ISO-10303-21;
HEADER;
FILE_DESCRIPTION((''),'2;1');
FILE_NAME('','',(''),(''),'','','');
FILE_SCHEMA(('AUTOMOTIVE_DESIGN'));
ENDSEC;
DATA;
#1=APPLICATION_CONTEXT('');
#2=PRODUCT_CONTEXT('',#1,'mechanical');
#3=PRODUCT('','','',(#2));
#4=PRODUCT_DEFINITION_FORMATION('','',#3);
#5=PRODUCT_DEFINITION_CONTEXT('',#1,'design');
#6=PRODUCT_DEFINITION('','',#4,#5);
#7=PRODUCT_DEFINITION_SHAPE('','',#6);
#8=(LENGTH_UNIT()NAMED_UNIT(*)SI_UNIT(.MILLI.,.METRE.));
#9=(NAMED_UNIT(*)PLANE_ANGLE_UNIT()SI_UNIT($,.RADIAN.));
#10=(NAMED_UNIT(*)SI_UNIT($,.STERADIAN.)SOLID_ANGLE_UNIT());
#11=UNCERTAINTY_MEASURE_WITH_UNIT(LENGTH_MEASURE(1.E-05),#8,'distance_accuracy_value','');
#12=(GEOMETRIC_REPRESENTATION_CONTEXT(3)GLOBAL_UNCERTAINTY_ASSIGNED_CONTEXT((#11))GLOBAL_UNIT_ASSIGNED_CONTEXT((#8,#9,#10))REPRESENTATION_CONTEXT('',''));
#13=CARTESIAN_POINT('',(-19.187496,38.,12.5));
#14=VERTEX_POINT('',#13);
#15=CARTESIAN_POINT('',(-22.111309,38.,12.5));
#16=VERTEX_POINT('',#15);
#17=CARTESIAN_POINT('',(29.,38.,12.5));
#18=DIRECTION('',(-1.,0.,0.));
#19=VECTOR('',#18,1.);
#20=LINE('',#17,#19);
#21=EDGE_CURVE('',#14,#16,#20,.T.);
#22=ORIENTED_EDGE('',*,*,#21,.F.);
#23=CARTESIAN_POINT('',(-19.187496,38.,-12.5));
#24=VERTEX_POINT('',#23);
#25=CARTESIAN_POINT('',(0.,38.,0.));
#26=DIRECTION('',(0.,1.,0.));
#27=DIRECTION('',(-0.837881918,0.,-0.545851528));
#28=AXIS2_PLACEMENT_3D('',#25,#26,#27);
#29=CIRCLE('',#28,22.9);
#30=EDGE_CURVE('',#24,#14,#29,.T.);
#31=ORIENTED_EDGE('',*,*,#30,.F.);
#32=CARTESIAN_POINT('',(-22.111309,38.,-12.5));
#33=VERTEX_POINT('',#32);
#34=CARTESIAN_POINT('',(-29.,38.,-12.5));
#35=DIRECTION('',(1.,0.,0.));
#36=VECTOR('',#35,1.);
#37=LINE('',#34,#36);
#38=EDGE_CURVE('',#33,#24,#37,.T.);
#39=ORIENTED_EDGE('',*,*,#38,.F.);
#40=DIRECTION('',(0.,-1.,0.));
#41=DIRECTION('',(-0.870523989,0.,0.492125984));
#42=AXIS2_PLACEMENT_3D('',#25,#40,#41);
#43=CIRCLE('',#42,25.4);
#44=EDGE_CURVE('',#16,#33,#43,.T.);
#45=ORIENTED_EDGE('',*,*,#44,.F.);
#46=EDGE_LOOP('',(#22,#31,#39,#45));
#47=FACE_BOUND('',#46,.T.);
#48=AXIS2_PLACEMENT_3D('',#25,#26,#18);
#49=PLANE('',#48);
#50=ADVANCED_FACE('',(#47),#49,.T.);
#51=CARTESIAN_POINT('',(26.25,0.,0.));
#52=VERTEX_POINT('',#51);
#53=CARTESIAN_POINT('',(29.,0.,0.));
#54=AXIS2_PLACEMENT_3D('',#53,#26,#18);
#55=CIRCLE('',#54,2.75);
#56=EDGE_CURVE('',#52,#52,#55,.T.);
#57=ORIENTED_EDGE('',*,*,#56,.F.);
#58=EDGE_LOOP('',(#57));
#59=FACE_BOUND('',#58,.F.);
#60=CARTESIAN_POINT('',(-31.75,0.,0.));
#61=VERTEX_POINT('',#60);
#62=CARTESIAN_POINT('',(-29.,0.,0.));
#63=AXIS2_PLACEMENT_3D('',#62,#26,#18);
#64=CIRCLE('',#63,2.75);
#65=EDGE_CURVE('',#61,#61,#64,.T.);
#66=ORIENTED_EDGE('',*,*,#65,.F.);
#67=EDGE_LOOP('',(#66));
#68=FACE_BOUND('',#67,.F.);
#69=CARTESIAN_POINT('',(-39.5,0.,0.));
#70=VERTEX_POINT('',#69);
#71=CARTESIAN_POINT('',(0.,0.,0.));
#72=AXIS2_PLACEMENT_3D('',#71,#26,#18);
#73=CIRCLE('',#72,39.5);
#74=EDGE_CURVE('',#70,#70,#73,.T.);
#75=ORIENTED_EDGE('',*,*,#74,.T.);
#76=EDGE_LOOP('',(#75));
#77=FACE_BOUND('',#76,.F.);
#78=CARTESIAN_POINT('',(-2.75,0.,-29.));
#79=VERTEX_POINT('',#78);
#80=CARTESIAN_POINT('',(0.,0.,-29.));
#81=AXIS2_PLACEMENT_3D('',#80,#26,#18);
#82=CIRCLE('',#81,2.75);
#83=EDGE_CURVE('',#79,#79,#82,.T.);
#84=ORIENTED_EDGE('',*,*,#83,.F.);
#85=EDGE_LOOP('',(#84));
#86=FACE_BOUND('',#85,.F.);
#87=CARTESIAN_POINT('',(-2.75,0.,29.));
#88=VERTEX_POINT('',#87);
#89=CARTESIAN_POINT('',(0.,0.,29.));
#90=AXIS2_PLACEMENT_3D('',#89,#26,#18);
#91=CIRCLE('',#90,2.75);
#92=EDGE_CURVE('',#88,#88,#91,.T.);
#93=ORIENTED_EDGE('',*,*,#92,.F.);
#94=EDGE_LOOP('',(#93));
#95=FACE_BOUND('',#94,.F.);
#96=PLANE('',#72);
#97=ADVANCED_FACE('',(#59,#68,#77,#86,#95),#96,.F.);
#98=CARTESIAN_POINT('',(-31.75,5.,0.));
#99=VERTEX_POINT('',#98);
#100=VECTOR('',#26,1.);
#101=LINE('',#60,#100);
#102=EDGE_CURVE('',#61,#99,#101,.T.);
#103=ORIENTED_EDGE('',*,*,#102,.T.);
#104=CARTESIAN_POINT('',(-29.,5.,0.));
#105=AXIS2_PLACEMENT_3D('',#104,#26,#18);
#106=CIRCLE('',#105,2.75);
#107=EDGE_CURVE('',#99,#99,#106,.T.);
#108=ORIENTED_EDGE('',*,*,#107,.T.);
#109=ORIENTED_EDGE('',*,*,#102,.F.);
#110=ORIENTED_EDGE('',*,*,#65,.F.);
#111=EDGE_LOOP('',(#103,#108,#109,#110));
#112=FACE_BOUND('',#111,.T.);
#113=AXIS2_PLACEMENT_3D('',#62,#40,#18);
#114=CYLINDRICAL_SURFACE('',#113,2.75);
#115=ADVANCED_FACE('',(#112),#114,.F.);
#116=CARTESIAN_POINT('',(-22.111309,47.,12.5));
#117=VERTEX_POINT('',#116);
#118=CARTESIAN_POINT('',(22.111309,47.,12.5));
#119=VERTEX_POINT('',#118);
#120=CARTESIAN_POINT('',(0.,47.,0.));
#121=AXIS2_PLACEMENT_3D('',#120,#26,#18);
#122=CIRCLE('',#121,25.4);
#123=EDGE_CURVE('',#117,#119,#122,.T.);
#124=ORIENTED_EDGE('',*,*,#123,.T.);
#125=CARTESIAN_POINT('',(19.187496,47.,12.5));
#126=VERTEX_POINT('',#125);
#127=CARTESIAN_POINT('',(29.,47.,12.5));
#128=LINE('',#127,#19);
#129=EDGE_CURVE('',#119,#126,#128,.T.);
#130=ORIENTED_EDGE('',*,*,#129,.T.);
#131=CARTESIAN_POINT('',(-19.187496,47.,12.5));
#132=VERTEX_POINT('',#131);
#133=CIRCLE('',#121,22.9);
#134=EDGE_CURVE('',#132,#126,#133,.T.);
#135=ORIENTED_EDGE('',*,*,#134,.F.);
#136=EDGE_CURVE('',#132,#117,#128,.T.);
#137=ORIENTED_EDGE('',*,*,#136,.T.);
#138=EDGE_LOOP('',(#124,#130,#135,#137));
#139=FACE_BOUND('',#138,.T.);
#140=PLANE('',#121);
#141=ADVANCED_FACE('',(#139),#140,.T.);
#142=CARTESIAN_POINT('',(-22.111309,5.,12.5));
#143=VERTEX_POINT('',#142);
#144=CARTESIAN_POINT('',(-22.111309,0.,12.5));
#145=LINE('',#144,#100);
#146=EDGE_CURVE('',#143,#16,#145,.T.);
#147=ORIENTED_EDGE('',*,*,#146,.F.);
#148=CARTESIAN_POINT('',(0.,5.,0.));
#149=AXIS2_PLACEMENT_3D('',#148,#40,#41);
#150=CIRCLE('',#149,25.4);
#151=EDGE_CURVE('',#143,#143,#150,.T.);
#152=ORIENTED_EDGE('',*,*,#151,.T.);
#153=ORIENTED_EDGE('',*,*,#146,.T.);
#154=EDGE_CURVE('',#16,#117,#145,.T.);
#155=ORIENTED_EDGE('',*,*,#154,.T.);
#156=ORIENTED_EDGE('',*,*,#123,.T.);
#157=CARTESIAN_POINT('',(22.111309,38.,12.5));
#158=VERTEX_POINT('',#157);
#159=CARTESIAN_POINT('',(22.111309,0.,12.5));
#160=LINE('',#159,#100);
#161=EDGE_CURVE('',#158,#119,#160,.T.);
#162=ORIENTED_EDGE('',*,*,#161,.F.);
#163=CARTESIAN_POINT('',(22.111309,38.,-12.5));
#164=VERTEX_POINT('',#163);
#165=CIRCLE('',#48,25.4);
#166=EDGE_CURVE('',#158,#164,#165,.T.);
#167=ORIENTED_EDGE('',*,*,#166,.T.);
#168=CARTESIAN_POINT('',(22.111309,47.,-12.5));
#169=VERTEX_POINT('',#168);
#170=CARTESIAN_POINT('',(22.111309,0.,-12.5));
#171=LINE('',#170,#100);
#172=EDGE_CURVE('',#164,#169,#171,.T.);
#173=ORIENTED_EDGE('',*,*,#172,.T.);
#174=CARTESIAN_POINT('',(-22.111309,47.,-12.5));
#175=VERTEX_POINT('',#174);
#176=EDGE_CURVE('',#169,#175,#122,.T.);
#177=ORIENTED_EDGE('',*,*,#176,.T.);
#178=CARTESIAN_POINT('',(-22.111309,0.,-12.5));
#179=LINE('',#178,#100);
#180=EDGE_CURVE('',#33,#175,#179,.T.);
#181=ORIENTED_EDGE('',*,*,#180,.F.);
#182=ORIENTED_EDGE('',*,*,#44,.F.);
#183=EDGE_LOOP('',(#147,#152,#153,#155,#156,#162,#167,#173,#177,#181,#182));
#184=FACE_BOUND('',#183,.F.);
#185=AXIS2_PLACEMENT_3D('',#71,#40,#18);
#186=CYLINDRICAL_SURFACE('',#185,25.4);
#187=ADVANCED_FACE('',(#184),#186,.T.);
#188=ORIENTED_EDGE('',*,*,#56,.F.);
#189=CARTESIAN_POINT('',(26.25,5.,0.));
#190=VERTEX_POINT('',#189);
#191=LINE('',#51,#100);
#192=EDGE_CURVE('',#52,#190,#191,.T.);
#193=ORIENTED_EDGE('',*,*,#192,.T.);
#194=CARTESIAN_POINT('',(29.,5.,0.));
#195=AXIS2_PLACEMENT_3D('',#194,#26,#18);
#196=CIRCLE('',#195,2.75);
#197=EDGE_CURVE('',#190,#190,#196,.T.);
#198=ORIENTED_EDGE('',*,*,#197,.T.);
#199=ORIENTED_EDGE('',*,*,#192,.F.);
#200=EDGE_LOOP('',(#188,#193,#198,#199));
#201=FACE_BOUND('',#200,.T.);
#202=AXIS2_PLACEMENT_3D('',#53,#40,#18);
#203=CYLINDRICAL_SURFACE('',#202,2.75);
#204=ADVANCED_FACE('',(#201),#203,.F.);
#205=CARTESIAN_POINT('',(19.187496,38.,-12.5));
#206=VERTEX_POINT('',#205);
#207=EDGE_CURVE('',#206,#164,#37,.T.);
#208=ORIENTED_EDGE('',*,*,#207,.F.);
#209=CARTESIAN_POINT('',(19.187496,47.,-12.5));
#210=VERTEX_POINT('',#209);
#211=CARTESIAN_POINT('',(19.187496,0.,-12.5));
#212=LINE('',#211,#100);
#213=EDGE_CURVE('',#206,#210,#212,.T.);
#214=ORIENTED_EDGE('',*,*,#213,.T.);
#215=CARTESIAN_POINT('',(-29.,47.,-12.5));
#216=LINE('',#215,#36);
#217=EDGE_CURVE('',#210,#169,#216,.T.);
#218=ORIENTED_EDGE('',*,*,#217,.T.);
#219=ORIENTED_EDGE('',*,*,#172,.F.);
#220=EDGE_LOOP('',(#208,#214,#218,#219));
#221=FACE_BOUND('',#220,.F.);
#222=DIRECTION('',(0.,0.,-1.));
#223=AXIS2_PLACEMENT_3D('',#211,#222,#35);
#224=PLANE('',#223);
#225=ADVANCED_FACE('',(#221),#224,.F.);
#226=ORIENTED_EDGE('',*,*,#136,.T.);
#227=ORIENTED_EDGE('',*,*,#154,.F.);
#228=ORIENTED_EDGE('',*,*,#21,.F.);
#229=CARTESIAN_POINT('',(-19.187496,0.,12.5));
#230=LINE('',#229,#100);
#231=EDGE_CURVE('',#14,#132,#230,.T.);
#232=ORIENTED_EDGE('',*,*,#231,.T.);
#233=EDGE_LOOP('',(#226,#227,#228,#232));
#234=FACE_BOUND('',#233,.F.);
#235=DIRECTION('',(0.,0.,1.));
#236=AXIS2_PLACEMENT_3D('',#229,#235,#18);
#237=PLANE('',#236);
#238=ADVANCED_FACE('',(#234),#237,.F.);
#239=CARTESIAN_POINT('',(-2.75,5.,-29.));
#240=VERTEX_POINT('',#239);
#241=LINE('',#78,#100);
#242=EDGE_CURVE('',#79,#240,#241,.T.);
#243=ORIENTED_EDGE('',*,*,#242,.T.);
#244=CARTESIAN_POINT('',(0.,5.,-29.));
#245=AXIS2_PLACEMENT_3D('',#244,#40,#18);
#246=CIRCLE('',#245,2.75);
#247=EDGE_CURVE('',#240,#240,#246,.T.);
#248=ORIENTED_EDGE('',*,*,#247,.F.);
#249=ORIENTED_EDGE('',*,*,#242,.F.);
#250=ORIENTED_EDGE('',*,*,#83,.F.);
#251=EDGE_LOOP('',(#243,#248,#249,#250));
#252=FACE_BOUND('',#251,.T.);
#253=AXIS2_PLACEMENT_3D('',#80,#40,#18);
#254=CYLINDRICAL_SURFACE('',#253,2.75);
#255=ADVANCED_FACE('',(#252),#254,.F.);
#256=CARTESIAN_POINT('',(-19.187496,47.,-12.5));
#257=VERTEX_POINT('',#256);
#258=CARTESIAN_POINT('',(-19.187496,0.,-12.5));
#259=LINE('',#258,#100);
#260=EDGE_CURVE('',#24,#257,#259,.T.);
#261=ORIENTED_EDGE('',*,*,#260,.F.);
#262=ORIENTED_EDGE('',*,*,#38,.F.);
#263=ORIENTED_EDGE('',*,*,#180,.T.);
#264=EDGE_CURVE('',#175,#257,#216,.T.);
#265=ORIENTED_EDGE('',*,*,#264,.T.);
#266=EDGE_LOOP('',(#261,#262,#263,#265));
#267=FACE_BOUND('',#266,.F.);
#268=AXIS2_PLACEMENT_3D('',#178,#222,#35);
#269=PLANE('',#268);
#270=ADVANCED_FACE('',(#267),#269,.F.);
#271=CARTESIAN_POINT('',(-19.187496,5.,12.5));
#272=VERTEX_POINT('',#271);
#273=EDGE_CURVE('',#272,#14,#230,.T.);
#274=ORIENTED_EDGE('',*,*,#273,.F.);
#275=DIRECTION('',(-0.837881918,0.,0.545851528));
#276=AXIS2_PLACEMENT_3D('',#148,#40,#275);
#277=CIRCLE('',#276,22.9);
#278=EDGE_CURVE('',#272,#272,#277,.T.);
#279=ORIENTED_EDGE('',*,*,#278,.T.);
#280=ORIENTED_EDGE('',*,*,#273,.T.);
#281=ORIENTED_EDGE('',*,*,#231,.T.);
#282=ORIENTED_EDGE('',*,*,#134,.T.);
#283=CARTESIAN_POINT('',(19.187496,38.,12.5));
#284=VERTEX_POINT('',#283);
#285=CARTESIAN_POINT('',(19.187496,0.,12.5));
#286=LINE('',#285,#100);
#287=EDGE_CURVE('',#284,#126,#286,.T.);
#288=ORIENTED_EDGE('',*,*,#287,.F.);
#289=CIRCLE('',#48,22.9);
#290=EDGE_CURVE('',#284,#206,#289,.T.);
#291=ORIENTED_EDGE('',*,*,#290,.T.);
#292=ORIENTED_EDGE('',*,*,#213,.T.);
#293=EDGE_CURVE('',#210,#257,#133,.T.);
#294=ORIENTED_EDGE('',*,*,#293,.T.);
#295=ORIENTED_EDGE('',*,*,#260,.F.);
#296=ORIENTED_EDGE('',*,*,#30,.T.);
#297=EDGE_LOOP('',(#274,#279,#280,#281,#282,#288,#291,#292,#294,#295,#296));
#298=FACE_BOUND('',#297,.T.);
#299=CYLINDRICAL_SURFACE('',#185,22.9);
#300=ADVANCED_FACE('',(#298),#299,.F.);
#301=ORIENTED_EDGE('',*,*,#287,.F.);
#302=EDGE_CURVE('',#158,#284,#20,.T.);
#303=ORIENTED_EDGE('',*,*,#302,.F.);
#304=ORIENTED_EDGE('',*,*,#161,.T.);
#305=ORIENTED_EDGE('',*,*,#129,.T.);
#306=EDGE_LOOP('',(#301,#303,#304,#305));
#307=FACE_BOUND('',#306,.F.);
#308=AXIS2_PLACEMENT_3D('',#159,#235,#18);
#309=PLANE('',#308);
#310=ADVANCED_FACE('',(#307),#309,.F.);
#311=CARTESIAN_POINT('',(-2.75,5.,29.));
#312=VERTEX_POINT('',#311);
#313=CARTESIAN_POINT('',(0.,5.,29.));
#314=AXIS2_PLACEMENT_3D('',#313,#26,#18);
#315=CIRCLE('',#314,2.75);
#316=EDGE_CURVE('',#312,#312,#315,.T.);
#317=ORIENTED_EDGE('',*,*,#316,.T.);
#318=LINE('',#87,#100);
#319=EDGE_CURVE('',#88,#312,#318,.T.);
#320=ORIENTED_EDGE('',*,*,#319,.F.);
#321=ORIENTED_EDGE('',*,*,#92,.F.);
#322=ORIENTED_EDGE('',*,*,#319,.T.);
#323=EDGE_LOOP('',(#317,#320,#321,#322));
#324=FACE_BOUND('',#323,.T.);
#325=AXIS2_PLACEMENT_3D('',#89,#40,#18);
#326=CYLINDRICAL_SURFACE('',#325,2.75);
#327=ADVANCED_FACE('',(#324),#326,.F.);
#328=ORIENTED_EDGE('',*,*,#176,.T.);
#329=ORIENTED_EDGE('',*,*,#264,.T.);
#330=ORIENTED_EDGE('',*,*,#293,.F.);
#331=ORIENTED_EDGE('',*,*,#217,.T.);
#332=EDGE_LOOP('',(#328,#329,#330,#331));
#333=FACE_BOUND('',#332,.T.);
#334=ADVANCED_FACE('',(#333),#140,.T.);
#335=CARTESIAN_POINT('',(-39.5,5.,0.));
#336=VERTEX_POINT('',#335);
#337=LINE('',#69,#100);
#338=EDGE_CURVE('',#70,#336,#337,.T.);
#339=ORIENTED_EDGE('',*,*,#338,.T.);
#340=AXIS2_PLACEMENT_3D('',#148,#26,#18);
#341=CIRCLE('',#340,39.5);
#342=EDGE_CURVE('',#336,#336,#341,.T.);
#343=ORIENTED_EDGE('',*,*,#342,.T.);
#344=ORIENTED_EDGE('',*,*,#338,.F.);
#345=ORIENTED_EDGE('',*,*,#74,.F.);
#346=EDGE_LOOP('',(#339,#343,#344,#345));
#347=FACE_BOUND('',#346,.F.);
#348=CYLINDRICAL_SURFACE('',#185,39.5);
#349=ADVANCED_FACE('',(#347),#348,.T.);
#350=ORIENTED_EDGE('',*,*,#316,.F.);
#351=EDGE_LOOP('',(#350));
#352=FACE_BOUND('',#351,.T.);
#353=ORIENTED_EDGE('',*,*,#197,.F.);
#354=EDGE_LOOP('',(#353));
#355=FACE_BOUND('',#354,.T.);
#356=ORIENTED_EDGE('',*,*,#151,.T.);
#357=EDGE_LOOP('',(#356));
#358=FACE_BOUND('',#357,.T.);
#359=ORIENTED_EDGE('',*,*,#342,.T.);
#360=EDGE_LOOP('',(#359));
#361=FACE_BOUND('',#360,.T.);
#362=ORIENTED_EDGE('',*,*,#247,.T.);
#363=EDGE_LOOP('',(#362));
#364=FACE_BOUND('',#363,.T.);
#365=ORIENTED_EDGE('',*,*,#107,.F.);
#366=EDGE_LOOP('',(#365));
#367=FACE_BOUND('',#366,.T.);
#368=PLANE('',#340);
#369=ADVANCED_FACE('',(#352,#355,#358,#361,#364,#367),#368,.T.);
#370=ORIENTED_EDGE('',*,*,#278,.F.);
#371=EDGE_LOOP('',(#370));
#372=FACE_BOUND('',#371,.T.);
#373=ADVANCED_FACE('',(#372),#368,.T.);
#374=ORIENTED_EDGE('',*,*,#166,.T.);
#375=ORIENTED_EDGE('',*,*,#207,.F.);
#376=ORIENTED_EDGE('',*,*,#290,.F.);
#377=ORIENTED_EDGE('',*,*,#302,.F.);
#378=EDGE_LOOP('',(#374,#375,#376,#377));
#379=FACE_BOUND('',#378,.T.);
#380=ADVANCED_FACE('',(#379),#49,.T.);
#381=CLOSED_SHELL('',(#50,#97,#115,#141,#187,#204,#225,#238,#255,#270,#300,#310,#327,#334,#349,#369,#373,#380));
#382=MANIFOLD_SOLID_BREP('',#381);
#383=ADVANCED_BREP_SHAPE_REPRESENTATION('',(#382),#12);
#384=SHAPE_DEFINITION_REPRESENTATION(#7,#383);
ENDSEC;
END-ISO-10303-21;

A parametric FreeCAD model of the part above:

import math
import FreeCAD as App
import Part
import Sketcher

doc = App.newDocument("Part")
body = doc.addObject("PartDesign::Body", "Body")

sketch1 = body.newObject("Sketcher::SketchObject", "Sketch")
sketch1.AttachmentSupport = (doc.getObject("XZ_Plane"), [""])
sketch1.MapMode = "FlatFace"
sketch1.addGeometry([
    Part.Circle(App.Vector(0, 0, 0), App.Vector(0, 0, 1), 39.5),
    Part.Circle(App.Vector(-29, 0, 0), App.Vector(0, 0, 1), 2.75),
    Part.Circle(App.Vector(29, 0, 0), App.Vector(0, 0, 1), 2.75),
    Part.Circle(App.Vector(0, -29, 0), App.Vector(0, 0, 1), 2.75),
    Part.Circle(App.Vector(0, 29, 0), App.Vector(0, 0, 1), 2.75),
], False)
sketch1.addConstraint([
    Sketcher.Constraint("Coincident", 0, 3, -1, 1),
    Sketcher.Constraint("Equal", 1, 2),
    Sketcher.Constraint("Equal", 2, 3),
    Sketcher.Constraint("Equal", 3, 4),
    Sketcher.Constraint("Symmetric", 1, 3, 2, 3, -1, 1),
    Sketcher.Constraint("Symmetric", 3, 3, 4, 3, -1, 1),
    Sketcher.Constraint("PointOnObject", 1, 3, -1),
    Sketcher.Constraint("PointOnObject", 3, 3, -2),
    Sketcher.Constraint("Diameter", 0, 79.0),
    Sketcher.Constraint("Diameter", 1, 5.5),
    Sketcher.Constraint("DistanceX", 1, 3, 2, 3, 58.0),
    Sketcher.Constraint("DistanceY", 3, 3, 4, 3, 58.0),
])
pad1 = body.newObject("PartDesign::Pad", "Pad")
pad1.Profile = sketch1
pad1.Length = 5
pad1.Reversed = True

sketch2 = body.newObject("Sketcher::SketchObject", "Sketch001")
sketch2.AttachmentSupport = (doc.getObject("XZ_Plane"), [""])
sketch2.MapMode = "FlatFace"
sketch2.addGeometry([
    Part.ArcOfCircle(Part.Circle(App.Vector(0, 0, 0), App.Vector(0, 0, 1), 22.9), math.radians(33.082873), math.radians(146.917127)),
    Part.LineSegment(App.Vector(-19.187496, 12.5, 0), App.Vector(-22.111309, 12.5, 0)),
    Part.ArcOfCircle(Part.Circle(App.Vector(0, 0, 0), App.Vector(0, 0, 1), 25.4), math.radians(29.480412), math.radians(150.519588)),
    Part.LineSegment(App.Vector(22.111309, 12.5, 0), App.Vector(19.187496, 12.5, 0)),
    Part.LineSegment(App.Vector(-22.111309, -12.5, 0), App.Vector(-19.187496, -12.5, 0)),
    Part.ArcOfCircle(Part.Circle(App.Vector(0, 0, 0), App.Vector(0, 0, 1), 22.9), math.radians(-146.917127), math.radians(-33.082873)),
    Part.LineSegment(App.Vector(19.187496, -12.5, 0), App.Vector(22.111309, -12.5, 0)),
    Part.ArcOfCircle(Part.Circle(App.Vector(0, 0, 0), App.Vector(0, 0, 1), 25.4), math.radians(-150.519588), math.radians(-29.480412)),
], False)
sketch2.addConstraint([
    Sketcher.Constraint("Coincident", 0, 2, 1, 1),
    Sketcher.Constraint("Coincident", 1, 2, 2, 2),
    Sketcher.Constraint("Coincident", 2, 1, 3, 1),
    Sketcher.Constraint("Coincident", 3, 2, 0, 1),
    Sketcher.Constraint("Coincident", 4, 2, 5, 1),
    Sketcher.Constraint("Coincident", 5, 2, 6, 1),
    Sketcher.Constraint("Coincident", 6, 2, 7, 2),
    Sketcher.Constraint("Coincident", 7, 1, 4, 1),
    Sketcher.Constraint("Horizontal", 1),
    Sketcher.Constraint("Horizontal", 3),
    Sketcher.Constraint("Horizontal", 4),
    Sketcher.Constraint("Horizontal", 6),
    Sketcher.Constraint("Coincident", 0, 3, -1, 1),
    Sketcher.Constraint("Coincident", 2, 3, -1, 1),
    Sketcher.Constraint("Coincident", 5, 3, -1, 1),
    Sketcher.Constraint("Coincident", 7, 3, -1, 1),
    Sketcher.Constraint("Equal", 0, 5),
    Sketcher.Constraint("Equal", 2, 7),
    Sketcher.Constraint("Horizontal", 1, 2, 2, 1),
    Sketcher.Constraint("Horizontal", 4, 2, 5, 2),
    Sketcher.Constraint("Vertical", 0, 2, 4, 2),
    Sketcher.Constraint("Radius", 0, 22.9),
    Sketcher.Constraint("DistanceY", 4, 2, 0, 2, 25.0),
    Sketcher.Constraint("Radius", 2, 25.4),
])
pad2 = body.newObject("PartDesign::Pad", "Pad001")
pad2.Profile = sketch2
pad2.Length = 47
pad2.Reversed = True

sketch3 = body.newObject("Sketcher::SketchObject", "Sketch002")
sketch3.AttachmentSupport = (doc.getObject("XZ_Plane"), [""])
sketch3.MapMode = "FlatFace"
sketch3.addGeometry([
    Part.ArcOfCircle(Part.Circle(App.Vector(0, 0, 0), App.Vector(0, 0, 1), 22.9), math.radians(146.917127), math.radians(213.082873)),
    Part.LineSegment(App.Vector(-19.187496, -12.5, 0), App.Vector(-22.111309, -12.5, 0)),
    Part.ArcOfCircle(Part.Circle(App.Vector(0, 0, 0), App.Vector(0, 0, 1), 25.4), math.radians(150.519588), math.radians(209.480412)),
    Part.LineSegment(App.Vector(-22.111309, 12.5, 0), App.Vector(-19.187496, 12.5, 0)),
    Part.ArcOfCircle(Part.Circle(App.Vector(0, 0, 0), App.Vector(0, 0, 1), 22.9), math.radians(-33.082873), math.radians(33.082873)),
    Part.LineSegment(App.Vector(19.187496, 12.5, 0), App.Vector(22.111309, 12.5, 0)),
    Part.ArcOfCircle(Part.Circle(App.Vector(0, 0, 0), App.Vector(0, 0, 1), 25.4), math.radians(-29.480412), math.radians(29.480412)),
    Part.LineSegment(App.Vector(22.111309, -12.5, 0), App.Vector(19.187496, -12.5, 0)),
], False)
sketch3.addConstraint([
    Sketcher.Constraint("Coincident", 0, 2, 1, 1),
    Sketcher.Constraint("Coincident", 1, 2, 2, 2),
    Sketcher.Constraint("Coincident", 2, 1, 3, 1),
    Sketcher.Constraint("Coincident", 3, 2, 0, 1),
    Sketcher.Constraint("Coincident", 4, 2, 5, 1),
    Sketcher.Constraint("Coincident", 5, 2, 6, 2),
    Sketcher.Constraint("Coincident", 6, 1, 7, 1),
    Sketcher.Constraint("Coincident", 7, 2, 4, 1),
    Sketcher.Constraint("Horizontal", 1),
    Sketcher.Constraint("Horizontal", 3),
    Sketcher.Constraint("Horizontal", 5),
    Sketcher.Constraint("Horizontal", 7),
    Sketcher.Constraint("Coincident", 0, 3, -1, 1),
    Sketcher.Constraint("Coincident", 2, 3, -1, 1),
    Sketcher.Constraint("Coincident", 4, 3, -1, 1),
    Sketcher.Constraint("Coincident", 6, 3, -1, 1),
    Sketcher.Constraint("Equal", 0, 4),
    Sketcher.Constraint("Equal", 2, 6),
    Sketcher.Constraint("Horizontal", 3, 2, 4, 2),
    Sketcher.Constraint("Horizontal", 1, 2, 6, 1),
    Sketcher.Constraint("Vertical", 1, 2, 2, 1),
    Sketcher.Constraint("Radius", 0, 22.9),
    Sketcher.Constraint("DistanceY", 1, 2, 2, 1, 25.0),
    Sketcher.Constraint("Radius", 2, 25.4),
])
pad3 = body.newObject("PartDesign::Pad", "Pad002")
pad3.Profile = sketch3
pad3.Length = 38
pad3.Reversed = True

doc.recompute()
